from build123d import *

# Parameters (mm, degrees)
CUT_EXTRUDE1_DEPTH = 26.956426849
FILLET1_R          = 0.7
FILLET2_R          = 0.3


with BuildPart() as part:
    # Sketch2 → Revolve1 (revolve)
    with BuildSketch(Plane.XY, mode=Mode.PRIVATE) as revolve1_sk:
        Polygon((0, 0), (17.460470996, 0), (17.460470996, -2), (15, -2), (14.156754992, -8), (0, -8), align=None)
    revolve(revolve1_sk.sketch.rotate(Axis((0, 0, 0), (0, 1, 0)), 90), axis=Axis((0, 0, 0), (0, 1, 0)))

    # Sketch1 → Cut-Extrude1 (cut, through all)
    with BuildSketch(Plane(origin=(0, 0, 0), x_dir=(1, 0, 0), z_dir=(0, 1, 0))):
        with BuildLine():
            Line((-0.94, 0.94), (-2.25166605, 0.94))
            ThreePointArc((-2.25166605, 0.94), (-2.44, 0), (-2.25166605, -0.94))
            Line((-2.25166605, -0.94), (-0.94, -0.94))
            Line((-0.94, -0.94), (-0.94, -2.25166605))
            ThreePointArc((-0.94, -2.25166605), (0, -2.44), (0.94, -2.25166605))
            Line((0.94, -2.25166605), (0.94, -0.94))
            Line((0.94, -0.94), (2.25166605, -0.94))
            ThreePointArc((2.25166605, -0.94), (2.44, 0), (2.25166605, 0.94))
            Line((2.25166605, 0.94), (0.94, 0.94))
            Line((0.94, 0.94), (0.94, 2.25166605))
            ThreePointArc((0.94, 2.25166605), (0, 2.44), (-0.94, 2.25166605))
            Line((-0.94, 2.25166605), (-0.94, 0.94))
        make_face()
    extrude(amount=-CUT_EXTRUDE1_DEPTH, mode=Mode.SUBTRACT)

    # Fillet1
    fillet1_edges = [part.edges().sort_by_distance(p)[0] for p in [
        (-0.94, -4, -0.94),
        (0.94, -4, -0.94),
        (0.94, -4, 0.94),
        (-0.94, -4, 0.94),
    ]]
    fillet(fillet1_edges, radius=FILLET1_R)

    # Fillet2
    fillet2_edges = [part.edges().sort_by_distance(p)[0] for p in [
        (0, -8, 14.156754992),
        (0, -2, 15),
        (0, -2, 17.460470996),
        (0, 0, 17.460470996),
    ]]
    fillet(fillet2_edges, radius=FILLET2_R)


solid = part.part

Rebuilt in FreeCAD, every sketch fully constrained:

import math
import FreeCAD as App
import Part
import Sketcher

V = App.Vector
Q = App.Units.Quantity


def edges_at(feature, points):
    """Names of the edges that pass closest to the given points."""
    edges = feature.Shape.Edges
    near = lambda p: min(range(len(edges)), key=lambda i: edges[i].distToShape(Part.Vertex(*p))[0])
    return sorted({f"Edge{near(p) + 1}" for p in points})

doc = App.newDocument("Part")
body = doc.addObject("PartDesign::Body", "Body")

# Sketch on XY plane
sketch1 = body.newObject("Sketcher::SketchObject", "Sketch")
sketch1.AttachmentSupport = (doc.getObject("XY_Plane"), [""])
sketch1.MapMode = "FlatFace"
sketch1.addGeometry([
    Part.LineSegment(V(17.5, 0, 0), V(0, 0, 0)),  # 0
    Part.LineSegment(V(0, 0, 0), V(0, -8, 0)),  # 1
    Part.LineSegment(V(0, -8, 0), V(14.2, -8, 0)),  # 2
    Part.LineSegment(V(14.2, -8, 0), V(15, -2, 0)),  # 3
    Part.LineSegment(V(15, -2, 0), V(17.5, -2, 0)),  # 4
    Part.LineSegment(V(17.5, -2, 0), V(17.5, 0, 0)),  # 5
], False)
sketch1.addConstraint([
    Sketcher.Constraint("Coincident", 0, 2, 1, 1),
    Sketcher.Constraint("Coincident", 1, 2, 2, 1),
    Sketcher.Constraint("Coincident", 2, 2, 3, 1),
    Sketcher.Constraint("Coincident", 3, 2, 4, 1),
    Sketcher.Constraint("Coincident", 4, 2, 5, 1),
    Sketcher.Constraint("Coincident", 5, 2, 0, 1),
    Sketcher.Constraint("Horizontal", 0),
    Sketcher.Constraint("Vertical", 1),
    Sketcher.Constraint("Horizontal", 2),
    Sketcher.Constraint("Horizontal", 4),
    Sketcher.Constraint("Vertical", 5),
    Sketcher.Constraint("Coincident", 0, 2, -1, 1),
    Sketcher.Constraint("DistanceY", 1, 2, 1, 1, 8.0),
    Sketcher.Constraint("DistanceY", 5, 1, 5, 2, 2.0),
    Sketcher.Constraint("Angle", 3, Q("82 deg")),
    Sketcher.Constraint("DistanceX", -1, 1, 3, 2, 15.0),
    Sketcher.Constraint("DistanceX", 0, 2, 0, 1, 17.460471),
])
revolution = body.newObject("PartDesign::Revolution", "Revolution")
revolution.Profile = sketch1
revolution.ReferenceAxis = (sketch1, ["V_Axis"])
revolution.Angle = 360

# Sketch on XZ plane
sketch2 = body.newObject("Sketcher::SketchObject", "Sketch001")
sketch2.AttachmentSupport = (doc.getObject("XZ_Plane"), [""])
sketch2.MapMode = "FlatFace"
sketch2.addGeometry([
    Part.LineSegment(V(-0.9, -0.9, 0), V(-2.3, -0.9, 0)),  # 0
    Part.ArcOfCircle(Part.Circle(V(0, 0, 0), V(0, 0, 1), 2.4), math.radians(157), math.radians(203)),  # 1
    Part.LineSegment(V(-2.3, 0.9, 0), V(-0.9, 0.9, 0)),  # 2
    Part.LineSegment(V(-0.9, 0.9, 0), V(-0.9, 2.3, 0)),  # 3
    Part.ArcOfCircle(Part.Circle(V(0, 0, 0), V(0, 0, 1), 2.4), math.radians(67), math.radians(113)),  # 4
    Part.LineSegment(V(0.9, 2.3, 0), V(0.9, 0.9, 0)),  # 5
    Part.LineSegment(V(0.9, 0.9, 0), V(2.3, 0.9, 0)),  # 6
    Part.ArcOfCircle(Part.Circle(V(0, 0, 0), V(0, 0, 1), 2.4), math.radians(-23), math.radians(23)),  # 7
    Part.LineSegment(V(2.3, -0.9, 0), V(0.9, -0.9, 0)),  # 8
    Part.LineSegment(V(0.9, -0.9, 0), V(0.9, -2.3, 0)),  # 9
    Part.ArcOfCircle(Part.Circle(V(0, 0, 0), V(0, 0, 1), 2.4), math.radians(-113), math.radians(-67)),  # 10
    Part.LineSegment(V(-0.9, -2.3, 0), V(-0.9, -0.9, 0)),  # 11
], False)
sketch2.addConstraint([
    Sketcher.Constraint("Coincident", 0, 2, 1, 2),
    Sketcher.Constraint("Coincident", 1, 1, 2, 1),
    Sketcher.Constraint("Coincident", 2, 2, 3, 1),
    Sketcher.Constraint("Coincident", 3, 2, 4, 2),
    Sketcher.Constraint("Coincident", 4, 1, 5, 1),
    Sketcher.Constraint("Coincident", 5, 2, 6, 1),
    Sketcher.Constraint("Coincident", 6, 2, 7, 2),
    Sketcher.Constraint("Coincident", 7, 1, 8, 1),
    Sketcher.Constraint("Coincident", 8, 2, 9, 1),
    Sketcher.Constraint("Coincident", 9, 2, 10, 2),
    Sketcher.Constraint("Coincident", 10, 1, 11, 1),
    Sketcher.Constraint("Coincident", 11, 2, 0, 1),
    Sketcher.Constraint("Horizontal", 0),
    Sketcher.Constraint("Horizontal", 2),
    Sketcher.Constraint("Vertical", 3),
    Sketcher.Constraint("Vertical", 5),
    Sketcher.Constraint("Horizontal", 6),
    Sketcher.Constraint("Horizontal", 8),
    Sketcher.Constraint("Vertical", 9),
    Sketcher.Constraint("Vertical", 11),
    Sketcher.Constraint("Coincident", 1, 3, -1, 1),
    Sketcher.Constraint("Coincident", 4, 3, -1, 1),
    Sketcher.Constraint("Coincident", 7, 3, -1, 1),
    Sketcher.Constraint("Coincident", 10, 3, -1, 1),
    Sketcher.Constraint("Equal", 1, 4),
    Sketcher.Constraint("Equal", 4, 7),
    Sketcher.Constraint("Equal", 7, 10),
    Sketcher.Constraint("Symmetric", 2, 2, 8, 2, -1, 1),
    Sketcher.Constraint("Symmetric", 5, 2, 11, 2, -1, 1),
    Sketcher.Constraint("Symmetric", 2, 2, 5, 2, -2),
    Sketcher.Constraint("Equal", 8, 3),
    Sketcher.Constraint("Radius", 1, 2.44),
    Sketcher.Constraint("DistanceY", 0, 2, -1, 1, 0.94),
])
pocket1 = body.newObject("PartDesign::Pocket", "Pocket")
pocket1.Profile = sketch2
pocket1.Type = "ThroughAll"
pocket1.Reversed = True
doc.recompute()

fillet = body.newObject("PartDesign::Fillet", "Fillet")
fillet.Base = (pocket1, edges_at(pocket1, [
    (-0.94, -4, -0.94),
    (0.94, -4, -0.94),
    (0.94, -4, 0.94),
    (-0.94, -4, 0.94),
]))
fillet.Radius = 0.7
doc.recompute()

fillet2 = body.newObject("PartDesign::Fillet", "Fillet001")
fillet2.Base = (fillet, edges_at(fillet, [
    (0, -8, 14.157),
    (0, -2, 15),
    (0, -2, 17.46),
    (0, 0, 17.46),
]))
fillet2.Radius = 0.3

doc.recompute()
